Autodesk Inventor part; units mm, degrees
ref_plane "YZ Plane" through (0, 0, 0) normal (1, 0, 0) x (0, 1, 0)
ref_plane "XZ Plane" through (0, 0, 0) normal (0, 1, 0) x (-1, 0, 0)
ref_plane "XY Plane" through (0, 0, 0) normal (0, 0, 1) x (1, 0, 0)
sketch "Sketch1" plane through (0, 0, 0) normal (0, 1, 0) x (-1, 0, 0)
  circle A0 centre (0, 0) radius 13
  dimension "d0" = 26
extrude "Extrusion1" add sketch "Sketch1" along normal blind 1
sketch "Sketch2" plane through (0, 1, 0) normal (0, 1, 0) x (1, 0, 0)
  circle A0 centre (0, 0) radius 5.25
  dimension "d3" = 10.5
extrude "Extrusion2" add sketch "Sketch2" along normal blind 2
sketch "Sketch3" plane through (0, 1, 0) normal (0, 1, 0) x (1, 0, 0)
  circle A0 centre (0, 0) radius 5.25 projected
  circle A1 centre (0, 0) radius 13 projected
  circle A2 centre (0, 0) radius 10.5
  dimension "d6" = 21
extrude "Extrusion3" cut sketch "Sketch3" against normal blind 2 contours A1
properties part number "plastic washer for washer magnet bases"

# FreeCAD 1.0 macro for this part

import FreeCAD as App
import Part
import Sketcher

doc = App.newDocument("Part")
body = doc.addObject("PartDesign::Body", "Body")

# Sketch on XZ plane
sketch1 = body.newObject("Sketcher::SketchObject", "Sketch")
sketch1.AttachmentSupport = (doc.getObject("XZ_Plane"), [""])
sketch1.MapMode = "FlatFace"
sketch1.addGeometry(Part.Circle(App.Vector(0, 0, 0), App.Vector(0, 0, 1), 13), False)
sketch1.addConstraint([
    Sketcher.Constraint("Coincident", 0, 3, -1, 1),
    Sketcher.Constraint("Diameter", 0, 26.0),
])
pad1 = body.newObject("PartDesign::Pad", "Pad")
pad1.Profile = sketch1
pad1.Length = 1
pad1.Reversed = True

# Sketch on XZ plane
sketch2 = body.newObject("Sketcher::SketchObject", "Sketch001")
sketch2.AttachmentSupport = (doc.getObject("XZ_Plane"), [""])
sketch2.MapMode = "FlatFace"
sketch2.AttachmentOffset = App.Placement(App.Vector(0, 0, -1), App.Rotation())
sketch2.addGeometry(Part.Circle(App.Vector(0, 0, 0), App.Vector(0, 0, 1), 5), False)
sketch2.addConstraint([
    Sketcher.Constraint("Coincident", 0, 3, -1, 1),
    Sketcher.Constraint("Diameter", 0, 10.5),
])
pad2 = body.newObject("PartDesign::Pad", "Pad001")
pad2.Profile = sketch2
pad2.Length = 2
pad2.Reversed = True

# Sketch on XZ plane
sketch3 = body.newObject("Sketcher::SketchObject", "Sketch002")
sketch3.AttachmentSupport = (doc.getObject("XZ_Plane"), [""])
sketch3.MapMode = "FlatFace"
sketch3.AttachmentOffset = App.Placement(App.Vector(0, 0, -1), App.Rotation())
sketch3.addGeometry([
    Part.Circle(App.Vector(0, 0, 0), App.Vector(0, 0, 1), 13),
    Part.Circle(App.Vector(0, 0, 0), App.Vector(0, 0, 1), 10),
], False)
sketch3.addConstraint([
    Sketcher.Constraint("Coincident", 0, 3, -1, 1),
    Sketcher.Constraint("Coincident", 1, 3, -1, 1),
    Sketcher.Constraint("Diameter", 1, 21.0),
    Sketcher.Constraint("Diameter", 0, 26.0),
])
pocket1 = body.newObject("PartDesign::Pocket", "Pocket")
pocket1.Profile = sketch3
pocket1.Length = 2
pocket1.Reversed = True

doc.recompute()
